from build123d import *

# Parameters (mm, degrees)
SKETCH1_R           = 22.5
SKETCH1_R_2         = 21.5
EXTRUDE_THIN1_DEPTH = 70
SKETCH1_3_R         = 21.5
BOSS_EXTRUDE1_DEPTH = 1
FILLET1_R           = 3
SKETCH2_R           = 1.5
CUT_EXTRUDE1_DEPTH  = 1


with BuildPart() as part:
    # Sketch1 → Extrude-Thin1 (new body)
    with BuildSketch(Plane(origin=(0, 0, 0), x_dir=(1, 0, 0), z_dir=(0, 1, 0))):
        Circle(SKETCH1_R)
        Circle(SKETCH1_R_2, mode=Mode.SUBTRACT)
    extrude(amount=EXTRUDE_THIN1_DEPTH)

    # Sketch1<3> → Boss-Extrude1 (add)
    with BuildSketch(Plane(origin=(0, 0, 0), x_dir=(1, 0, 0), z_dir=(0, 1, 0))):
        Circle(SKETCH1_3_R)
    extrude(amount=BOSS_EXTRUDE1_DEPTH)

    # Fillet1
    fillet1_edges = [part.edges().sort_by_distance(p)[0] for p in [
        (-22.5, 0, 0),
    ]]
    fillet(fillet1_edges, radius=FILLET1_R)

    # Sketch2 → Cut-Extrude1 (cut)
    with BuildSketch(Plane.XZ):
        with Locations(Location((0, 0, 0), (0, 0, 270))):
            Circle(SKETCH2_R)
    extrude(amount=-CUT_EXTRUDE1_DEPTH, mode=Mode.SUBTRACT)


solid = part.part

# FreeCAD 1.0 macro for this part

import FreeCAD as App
import Part
import Sketcher

V = App.Vector


def edges_at(feature, points):
    """Names of the edges that pass closest to the given points."""
    edges = feature.Shape.Edges
    near = lambda p: min(range(len(edges)), key=lambda i: edges[i].distToShape(Part.Vertex(*p))[0])
    return sorted({f"Edge{near(p) + 1}" for p in points})

doc = App.newDocument("Part")
body = doc.addObject("PartDesign::Body", "Body")

# Sketch on XZ plane
sketch1 = body.newObject("Sketcher::SketchObject", "Sketch")
sketch1.AttachmentSupport = (doc.getObject("XZ_Plane"), [""])
sketch1.MapMode = "FlatFace"
sketch1.addGeometry(Part.Circle(V(0, 0, 0), V(0, 0, 1), 22), False)
sketch1.addGeometry(Part.Circle(V(0, 0, 0), V(0, 0, 1), 22), False)
sketch1.addConstraint(Sketcher.Constraint("Coincident", 0, 3, -1, 1))
sketch1.addConstraint(Sketcher.Constraint("Coincident", 1, 3, -1, 1))
sketch1.addConstraint(Sketcher.Constraint("Diameter", 0, 45.0))
sketch1.addConstraint(Sketcher.Constraint("Diameter", 1, 43.0))
pad1 = body.newObject("PartDesign::Pad", "Pad")
pad1.Profile = sketch1
pad1.Length = 70
pad1.Reversed = True

# Sketch on XZ plane
sketch2 = body.newObject("Sketcher::SketchObject", "Sketch001")
sketch2.AttachmentSupport = (doc.getObject("XZ_Plane"), [""])
sketch2.MapMode = "FlatFace"
sketch2.addGeometry(Part.Circle(V(0, 0, 0), V(0, 0, 1), 22), False)
sketch2.addConstraint(Sketcher.Constraint("Coincident", 0, 3, -1, 1))
sketch2.addConstraint(Sketcher.Constraint("Diameter", 0, 43.0))
pad2 = body.newObject("PartDesign::Pad", "Pad001")
pad2.Profile = sketch2
pad2.Length = 1
pad2.Reversed = True
doc.recompute()

fillet = body.newObject("PartDesign::Fillet", "Fillet")
fillet.Base = (pad2, edges_at(pad2, [(-22.5, 0, 0)]))
fillet.Radius = 3

# Sketch on XZ plane
sketch3 = body.newObject("Sketcher::SketchObject", "Sketch002")
sketch3.AttachmentSupport = (doc.getObject("XZ_Plane"), [""])
sketch3.MapMode = "FlatFace"
sketch3.addGeometry(Part.Circle(V(0, 0, 0), V(0, 0, 1), 1.5), False)
sketch3.addConstraint(Sketcher.Constraint("Coincident", 0, 3, -1, 1))
sketch3.addConstraint(Sketcher.Constraint("Diameter", 0, 3.0))
pocket1 = body.newObject("PartDesign::Pocket", "Pocket")
pocket1.Profile = sketch3
pocket1.Length = 1

doc.recompute()
